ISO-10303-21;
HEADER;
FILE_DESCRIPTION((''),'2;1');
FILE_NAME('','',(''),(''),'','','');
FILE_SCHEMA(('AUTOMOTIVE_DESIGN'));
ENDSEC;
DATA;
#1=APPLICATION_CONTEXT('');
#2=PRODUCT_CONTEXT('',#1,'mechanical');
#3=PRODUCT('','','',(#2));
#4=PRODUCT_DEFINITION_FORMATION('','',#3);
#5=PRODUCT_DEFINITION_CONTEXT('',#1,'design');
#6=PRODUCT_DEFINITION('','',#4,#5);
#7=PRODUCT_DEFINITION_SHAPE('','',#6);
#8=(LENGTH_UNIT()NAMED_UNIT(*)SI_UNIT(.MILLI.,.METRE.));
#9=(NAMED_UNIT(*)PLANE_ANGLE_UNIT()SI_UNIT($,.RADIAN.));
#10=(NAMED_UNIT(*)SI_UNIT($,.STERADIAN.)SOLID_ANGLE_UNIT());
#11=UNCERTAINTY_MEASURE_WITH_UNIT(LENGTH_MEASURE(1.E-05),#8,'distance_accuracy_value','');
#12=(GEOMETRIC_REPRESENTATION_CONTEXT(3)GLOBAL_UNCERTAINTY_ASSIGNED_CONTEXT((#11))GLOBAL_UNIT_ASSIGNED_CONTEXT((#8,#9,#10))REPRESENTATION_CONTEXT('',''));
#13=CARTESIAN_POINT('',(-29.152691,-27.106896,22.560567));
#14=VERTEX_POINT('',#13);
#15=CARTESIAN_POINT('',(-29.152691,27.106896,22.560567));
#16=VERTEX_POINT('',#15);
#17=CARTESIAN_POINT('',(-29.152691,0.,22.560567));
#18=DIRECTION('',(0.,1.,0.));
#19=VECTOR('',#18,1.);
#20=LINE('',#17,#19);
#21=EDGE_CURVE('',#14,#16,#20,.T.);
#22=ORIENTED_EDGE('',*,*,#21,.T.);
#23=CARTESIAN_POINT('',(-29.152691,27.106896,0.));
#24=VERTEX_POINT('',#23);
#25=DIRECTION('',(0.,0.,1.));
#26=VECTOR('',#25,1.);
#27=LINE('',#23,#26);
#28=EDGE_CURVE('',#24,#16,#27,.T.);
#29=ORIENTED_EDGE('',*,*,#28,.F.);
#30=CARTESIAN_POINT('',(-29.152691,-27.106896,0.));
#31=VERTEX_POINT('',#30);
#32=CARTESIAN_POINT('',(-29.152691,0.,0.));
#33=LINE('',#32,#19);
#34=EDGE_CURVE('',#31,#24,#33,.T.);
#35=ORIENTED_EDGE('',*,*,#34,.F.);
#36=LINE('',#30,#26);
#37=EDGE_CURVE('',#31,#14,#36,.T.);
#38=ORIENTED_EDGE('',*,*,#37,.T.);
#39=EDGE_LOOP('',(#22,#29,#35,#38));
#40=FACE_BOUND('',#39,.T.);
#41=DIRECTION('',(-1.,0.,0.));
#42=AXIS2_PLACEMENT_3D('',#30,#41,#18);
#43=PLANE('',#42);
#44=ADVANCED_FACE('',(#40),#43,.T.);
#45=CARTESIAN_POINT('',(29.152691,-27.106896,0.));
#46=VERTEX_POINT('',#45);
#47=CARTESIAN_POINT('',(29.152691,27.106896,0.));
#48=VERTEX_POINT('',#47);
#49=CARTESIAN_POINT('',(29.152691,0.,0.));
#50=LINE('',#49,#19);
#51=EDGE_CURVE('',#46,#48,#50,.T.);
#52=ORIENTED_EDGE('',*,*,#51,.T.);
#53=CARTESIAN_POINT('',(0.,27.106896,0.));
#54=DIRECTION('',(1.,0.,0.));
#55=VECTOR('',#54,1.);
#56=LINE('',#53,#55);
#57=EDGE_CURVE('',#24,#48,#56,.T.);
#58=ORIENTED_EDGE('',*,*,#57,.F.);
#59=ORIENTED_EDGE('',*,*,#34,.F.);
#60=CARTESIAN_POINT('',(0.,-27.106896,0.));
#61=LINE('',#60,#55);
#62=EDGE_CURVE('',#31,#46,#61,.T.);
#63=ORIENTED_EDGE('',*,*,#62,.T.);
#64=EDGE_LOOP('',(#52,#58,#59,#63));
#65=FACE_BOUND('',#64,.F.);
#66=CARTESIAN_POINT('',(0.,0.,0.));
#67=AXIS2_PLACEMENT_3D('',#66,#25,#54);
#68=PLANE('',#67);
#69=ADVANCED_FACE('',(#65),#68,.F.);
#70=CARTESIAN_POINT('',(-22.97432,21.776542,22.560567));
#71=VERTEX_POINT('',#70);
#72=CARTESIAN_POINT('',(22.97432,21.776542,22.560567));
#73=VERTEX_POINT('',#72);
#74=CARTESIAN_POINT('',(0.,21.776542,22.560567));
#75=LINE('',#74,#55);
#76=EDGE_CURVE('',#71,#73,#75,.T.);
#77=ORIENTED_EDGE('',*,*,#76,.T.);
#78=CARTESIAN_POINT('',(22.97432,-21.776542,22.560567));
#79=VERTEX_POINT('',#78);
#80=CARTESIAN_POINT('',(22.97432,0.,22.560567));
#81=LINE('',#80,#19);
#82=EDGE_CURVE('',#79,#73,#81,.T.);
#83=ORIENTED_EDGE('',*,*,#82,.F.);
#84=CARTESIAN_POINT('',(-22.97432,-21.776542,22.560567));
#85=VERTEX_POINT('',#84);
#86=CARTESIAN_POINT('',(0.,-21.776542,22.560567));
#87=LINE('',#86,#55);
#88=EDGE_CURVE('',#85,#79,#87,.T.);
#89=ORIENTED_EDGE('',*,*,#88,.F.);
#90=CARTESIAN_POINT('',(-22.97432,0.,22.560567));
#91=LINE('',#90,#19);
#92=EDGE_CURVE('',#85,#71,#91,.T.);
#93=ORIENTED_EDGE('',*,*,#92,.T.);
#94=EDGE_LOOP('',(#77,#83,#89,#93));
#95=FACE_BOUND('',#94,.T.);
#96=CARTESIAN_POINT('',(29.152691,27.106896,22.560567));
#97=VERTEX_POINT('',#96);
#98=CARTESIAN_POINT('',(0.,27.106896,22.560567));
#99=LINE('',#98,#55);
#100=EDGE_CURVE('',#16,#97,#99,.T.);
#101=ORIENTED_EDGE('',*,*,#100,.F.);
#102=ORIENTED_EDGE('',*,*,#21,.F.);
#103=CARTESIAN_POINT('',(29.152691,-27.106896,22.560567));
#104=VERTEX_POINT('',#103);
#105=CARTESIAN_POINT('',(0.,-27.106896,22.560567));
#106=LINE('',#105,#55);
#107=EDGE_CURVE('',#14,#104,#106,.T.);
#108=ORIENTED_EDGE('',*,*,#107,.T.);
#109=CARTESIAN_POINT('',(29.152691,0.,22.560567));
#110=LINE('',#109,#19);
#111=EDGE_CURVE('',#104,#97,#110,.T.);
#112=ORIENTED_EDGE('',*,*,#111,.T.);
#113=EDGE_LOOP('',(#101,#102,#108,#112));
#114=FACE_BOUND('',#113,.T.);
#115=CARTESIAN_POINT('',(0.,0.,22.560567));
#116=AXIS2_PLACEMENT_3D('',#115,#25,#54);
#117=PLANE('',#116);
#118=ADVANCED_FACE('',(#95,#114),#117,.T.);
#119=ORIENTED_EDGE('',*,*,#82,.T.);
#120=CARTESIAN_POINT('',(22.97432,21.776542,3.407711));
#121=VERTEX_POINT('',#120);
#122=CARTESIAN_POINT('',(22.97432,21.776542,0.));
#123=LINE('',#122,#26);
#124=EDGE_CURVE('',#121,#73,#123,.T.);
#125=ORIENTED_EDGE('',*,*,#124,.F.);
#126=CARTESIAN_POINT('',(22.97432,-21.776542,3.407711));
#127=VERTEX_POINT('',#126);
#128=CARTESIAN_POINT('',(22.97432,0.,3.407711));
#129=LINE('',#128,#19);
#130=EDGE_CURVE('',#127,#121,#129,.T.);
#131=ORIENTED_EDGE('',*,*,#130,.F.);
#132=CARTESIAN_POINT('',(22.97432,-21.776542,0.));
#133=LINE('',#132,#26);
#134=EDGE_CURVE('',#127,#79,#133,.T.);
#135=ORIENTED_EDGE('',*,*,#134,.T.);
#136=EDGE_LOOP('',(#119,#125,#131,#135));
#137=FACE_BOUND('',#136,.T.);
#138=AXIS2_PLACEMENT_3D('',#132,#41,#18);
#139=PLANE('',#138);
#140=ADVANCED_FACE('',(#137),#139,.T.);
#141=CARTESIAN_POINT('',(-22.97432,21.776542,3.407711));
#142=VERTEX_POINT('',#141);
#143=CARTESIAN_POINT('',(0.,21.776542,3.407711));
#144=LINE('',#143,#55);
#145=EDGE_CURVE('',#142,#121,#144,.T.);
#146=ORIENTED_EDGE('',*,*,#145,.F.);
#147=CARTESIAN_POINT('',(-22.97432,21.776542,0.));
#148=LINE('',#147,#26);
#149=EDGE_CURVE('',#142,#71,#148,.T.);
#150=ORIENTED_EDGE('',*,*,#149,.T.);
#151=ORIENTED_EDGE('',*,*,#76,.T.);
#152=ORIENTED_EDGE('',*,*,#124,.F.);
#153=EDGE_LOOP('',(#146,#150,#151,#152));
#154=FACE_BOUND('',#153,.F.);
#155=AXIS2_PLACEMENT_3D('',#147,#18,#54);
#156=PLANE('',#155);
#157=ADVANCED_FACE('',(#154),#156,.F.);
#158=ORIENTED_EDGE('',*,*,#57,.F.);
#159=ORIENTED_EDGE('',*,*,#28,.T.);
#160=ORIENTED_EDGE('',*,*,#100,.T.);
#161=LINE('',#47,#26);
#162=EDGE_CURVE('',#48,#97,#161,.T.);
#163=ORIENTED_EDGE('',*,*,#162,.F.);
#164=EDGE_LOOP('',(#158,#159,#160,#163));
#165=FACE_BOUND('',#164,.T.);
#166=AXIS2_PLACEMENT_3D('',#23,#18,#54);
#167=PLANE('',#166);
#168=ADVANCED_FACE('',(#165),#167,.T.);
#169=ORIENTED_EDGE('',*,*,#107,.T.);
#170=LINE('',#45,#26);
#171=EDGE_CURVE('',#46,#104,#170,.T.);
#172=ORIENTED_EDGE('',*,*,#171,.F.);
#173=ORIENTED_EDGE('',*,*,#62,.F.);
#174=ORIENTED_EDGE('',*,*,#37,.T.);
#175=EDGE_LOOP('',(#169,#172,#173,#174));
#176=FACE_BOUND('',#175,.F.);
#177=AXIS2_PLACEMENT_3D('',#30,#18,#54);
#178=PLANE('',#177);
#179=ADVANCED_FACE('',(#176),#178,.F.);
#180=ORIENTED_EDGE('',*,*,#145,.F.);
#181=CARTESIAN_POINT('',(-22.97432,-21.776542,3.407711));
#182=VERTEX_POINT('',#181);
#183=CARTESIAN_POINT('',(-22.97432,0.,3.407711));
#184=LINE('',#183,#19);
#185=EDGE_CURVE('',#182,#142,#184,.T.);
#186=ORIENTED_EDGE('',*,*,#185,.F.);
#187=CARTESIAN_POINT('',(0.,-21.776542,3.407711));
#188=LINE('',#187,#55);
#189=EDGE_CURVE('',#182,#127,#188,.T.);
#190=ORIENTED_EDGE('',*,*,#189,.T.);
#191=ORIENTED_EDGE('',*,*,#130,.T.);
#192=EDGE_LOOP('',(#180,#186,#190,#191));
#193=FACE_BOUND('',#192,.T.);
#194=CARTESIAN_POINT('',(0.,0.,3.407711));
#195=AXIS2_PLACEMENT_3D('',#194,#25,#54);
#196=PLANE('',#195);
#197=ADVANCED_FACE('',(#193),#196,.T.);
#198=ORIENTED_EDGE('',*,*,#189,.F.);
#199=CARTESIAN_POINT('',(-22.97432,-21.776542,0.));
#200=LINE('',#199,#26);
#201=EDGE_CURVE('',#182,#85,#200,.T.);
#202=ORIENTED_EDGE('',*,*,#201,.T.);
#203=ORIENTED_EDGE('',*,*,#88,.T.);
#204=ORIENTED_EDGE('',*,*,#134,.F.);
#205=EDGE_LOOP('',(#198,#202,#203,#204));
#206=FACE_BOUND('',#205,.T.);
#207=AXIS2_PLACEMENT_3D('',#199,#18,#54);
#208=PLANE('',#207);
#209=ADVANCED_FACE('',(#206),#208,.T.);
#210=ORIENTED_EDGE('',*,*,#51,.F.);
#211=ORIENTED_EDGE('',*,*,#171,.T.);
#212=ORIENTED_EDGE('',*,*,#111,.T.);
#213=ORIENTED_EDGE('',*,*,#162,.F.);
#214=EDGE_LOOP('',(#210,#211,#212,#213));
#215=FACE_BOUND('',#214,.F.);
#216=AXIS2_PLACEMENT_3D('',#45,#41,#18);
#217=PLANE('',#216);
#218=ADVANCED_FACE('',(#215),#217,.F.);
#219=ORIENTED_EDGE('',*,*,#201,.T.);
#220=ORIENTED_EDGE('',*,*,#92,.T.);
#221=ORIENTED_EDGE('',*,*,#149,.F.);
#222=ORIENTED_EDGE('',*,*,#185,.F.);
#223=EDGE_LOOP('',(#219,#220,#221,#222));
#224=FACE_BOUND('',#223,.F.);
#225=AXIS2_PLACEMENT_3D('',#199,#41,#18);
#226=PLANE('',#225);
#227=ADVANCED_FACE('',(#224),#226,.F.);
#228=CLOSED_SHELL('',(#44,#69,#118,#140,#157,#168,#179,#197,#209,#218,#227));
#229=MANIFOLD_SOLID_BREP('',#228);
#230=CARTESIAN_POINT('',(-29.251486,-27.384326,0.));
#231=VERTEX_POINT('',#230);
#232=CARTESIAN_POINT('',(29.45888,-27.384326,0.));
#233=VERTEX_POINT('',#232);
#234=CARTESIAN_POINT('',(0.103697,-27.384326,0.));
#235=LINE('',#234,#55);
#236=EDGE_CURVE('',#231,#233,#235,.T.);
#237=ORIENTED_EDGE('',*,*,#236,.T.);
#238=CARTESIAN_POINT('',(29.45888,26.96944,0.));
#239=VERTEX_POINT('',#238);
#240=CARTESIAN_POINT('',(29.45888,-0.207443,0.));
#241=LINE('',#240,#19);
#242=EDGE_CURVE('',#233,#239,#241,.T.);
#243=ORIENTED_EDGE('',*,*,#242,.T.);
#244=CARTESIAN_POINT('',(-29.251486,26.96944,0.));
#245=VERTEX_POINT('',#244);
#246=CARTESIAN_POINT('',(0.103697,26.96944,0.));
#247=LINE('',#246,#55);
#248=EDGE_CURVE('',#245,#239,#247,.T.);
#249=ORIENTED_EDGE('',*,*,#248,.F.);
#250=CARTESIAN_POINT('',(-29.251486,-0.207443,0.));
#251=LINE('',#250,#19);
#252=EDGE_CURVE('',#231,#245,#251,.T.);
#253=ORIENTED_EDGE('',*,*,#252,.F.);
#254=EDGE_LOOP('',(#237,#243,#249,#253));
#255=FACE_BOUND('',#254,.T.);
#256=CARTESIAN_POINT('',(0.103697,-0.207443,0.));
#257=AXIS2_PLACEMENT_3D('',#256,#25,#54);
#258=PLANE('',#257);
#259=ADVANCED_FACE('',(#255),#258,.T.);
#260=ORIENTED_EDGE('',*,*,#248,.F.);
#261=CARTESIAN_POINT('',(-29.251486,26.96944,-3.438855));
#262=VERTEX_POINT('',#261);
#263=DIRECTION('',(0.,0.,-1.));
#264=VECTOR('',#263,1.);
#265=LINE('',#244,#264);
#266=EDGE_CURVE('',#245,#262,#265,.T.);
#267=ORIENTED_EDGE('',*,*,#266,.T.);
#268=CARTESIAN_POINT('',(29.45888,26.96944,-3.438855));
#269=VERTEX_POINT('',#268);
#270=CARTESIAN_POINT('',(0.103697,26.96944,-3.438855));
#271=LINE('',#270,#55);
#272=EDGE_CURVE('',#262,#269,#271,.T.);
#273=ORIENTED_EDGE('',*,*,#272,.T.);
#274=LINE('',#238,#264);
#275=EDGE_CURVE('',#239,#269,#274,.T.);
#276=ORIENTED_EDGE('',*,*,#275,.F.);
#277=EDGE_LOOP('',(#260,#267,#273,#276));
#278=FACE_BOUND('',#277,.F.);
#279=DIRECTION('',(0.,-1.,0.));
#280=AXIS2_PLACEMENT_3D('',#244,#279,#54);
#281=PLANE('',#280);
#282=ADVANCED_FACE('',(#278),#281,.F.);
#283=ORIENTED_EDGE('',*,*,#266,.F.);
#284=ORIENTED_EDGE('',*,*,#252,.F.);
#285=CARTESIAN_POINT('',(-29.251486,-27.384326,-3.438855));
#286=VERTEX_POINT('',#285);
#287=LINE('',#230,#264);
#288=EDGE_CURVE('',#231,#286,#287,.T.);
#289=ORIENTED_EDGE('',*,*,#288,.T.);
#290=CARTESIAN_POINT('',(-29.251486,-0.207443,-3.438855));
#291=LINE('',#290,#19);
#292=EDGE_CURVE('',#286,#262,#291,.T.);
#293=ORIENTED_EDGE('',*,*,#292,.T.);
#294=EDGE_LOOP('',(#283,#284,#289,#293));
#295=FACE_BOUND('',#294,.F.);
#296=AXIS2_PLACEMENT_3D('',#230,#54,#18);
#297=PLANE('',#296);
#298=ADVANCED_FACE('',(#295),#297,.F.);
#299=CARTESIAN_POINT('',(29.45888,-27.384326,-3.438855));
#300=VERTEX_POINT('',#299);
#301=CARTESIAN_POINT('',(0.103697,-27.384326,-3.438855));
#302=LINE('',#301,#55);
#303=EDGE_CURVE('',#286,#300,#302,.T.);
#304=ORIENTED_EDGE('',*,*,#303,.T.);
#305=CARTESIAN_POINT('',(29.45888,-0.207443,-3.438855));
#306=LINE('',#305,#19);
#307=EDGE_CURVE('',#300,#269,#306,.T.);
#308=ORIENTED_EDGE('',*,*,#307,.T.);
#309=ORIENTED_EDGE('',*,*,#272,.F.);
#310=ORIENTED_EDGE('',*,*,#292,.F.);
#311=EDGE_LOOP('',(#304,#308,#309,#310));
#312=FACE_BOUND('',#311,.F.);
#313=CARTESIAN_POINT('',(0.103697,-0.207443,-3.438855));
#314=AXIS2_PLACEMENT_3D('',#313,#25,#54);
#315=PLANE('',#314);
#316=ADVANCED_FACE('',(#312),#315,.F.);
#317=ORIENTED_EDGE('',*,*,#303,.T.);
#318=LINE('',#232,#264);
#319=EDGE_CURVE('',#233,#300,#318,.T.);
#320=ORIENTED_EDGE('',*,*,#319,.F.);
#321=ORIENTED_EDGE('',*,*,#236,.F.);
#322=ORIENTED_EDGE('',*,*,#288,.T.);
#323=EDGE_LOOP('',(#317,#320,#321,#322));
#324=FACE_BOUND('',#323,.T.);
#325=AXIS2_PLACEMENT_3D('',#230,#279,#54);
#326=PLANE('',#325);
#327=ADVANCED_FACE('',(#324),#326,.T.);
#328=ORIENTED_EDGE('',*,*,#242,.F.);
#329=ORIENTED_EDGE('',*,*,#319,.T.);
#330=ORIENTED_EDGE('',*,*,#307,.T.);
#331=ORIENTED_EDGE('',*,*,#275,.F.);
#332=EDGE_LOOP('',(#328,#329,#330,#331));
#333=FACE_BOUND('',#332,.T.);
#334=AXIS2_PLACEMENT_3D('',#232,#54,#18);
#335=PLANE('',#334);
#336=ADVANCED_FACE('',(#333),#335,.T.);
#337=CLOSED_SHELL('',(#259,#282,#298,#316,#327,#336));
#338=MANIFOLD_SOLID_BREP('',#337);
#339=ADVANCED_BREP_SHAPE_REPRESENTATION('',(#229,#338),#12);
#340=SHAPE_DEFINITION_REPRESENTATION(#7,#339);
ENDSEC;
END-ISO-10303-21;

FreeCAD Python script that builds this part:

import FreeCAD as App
import Part
import Sketcher
from FreeCAD import Vector


def add_polygon(sketch, points):
    """Adds a closed chain of lines whose ends are joined by coincident constraints."""
    first, n = sketch.GeometryCount, len(points)
    for a, b in zip(points, points[1:] + points[:1]):
        sketch.addGeometry(Part.LineSegment(App.Vector(*a, 0), App.Vector(*b, 0)), False)
    for i in range(n):
        sketch.addConstraint(Sketcher.Constraint("Coincident", first + i, 2, first + (i + 1) % n, 1))

doc = App.newDocument("Part")
body = doc.addObject("PartDesign::Body", "Body")

# Sketch on XY plane
sketch1 = body.newObject("Sketcher::SketchObject", "Sketch")
sketch1.AttachmentSupport = (doc.getObject("XY_Plane"), [""])
sketch1.MapMode = "FlatFace"
add_polygon(sketch1, [(-29, 27), (-29, -27), (29, -27), (29, 27)])  # lines 0-3
add_polygon(sketch1, [(23, -22), (-23, -22), (-23, 22), (23, 22)])  # lines 4-7
sketch1.addConstraint([
    Sketcher.Constraint("Vertical", 0),
    Sketcher.Constraint("Horizontal", 1),
    Sketcher.Constraint("Vertical", 2),
    Sketcher.Constraint("Horizontal", 3),
    Sketcher.Constraint("Horizontal", 4),
    Sketcher.Constraint("Vertical", 5),
    Sketcher.Constraint("Horizontal", 6),
    Sketcher.Constraint("Vertical", 7),
    Sketcher.Constraint("Symmetric", 0, 2, 2, 2, -1, 1),
    Sketcher.Constraint("Symmetric", 4, 2, 6, 2, -1, 1),
    Sketcher.Constraint("DistanceX", 4, 2, 4, 1, 45.94864),
    Sketcher.Constraint("DistanceY", 0, 2, 0, 1, 54.213792),
    Sketcher.Constraint("DistanceX", 1, 1, 1, 2, 58.305382),
    Sketcher.Constraint("DistanceY", 5, 1, 5, 2, 43.553084),
])
pad1 = body.newObject("PartDesign::Pad", "Pad")
pad1.Profile = sketch1
pad1.Length = 22.560567

# Sketch on XY plane
sketch2 = body.newObject("Sketcher::SketchObject", "Sketch001")
sketch2.AttachmentSupport = (doc.getObject("XY_Plane"), [""])
sketch2.MapMode = "FlatFace"
add_polygon(sketch2, [(-23, 22), (-23, -22), (23, -22), (23, 22)])  # lines 0-3
sketch2.addConstraint([
    Sketcher.Constraint("Vertical", 0),
    Sketcher.Constraint("Horizontal", 1),
    Sketcher.Constraint("Vertical", 2),
    Sketcher.Constraint("Horizontal", 3),
    Sketcher.Constraint("Symmetric", 0, 2, 2, 2, -1, 1),
    Sketcher.Constraint("DistanceX", 1, 1, 1, 2, 45.94864),
    Sketcher.Constraint("DistanceY", 0, 2, 0, 1, 43.553084),
])
pad2 = body.newObject("PartDesign::Pad", "Pad001")
pad2.Profile = sketch2
pad2.Length = 3.407711
body2 = doc.addObject("PartDesign::Body", "Body001")

# Sketch on XY plane
sketch3 = body2.newObject("Sketcher::SketchObject", "Sketch002")
sketch3.AttachmentSupport = (doc.getObject("XY_Plane001"), [""])
sketch3.MapMode = "FlatFace"
add_polygon(sketch3, [(-29, 27), (-29, -27), (29, -27), (29, 27)])  # lines 0-3
sketch3.addConstraint([
    Sketcher.Constraint("Vertical", 0),
    Sketcher.Constraint("Horizontal", 1),
    Sketcher.Constraint("Vertical", 2),
    Sketcher.Constraint("Horizontal", 3),
    Sketcher.Constraint("DistanceX", 1, 1, 1, 2, 58.710366),
    Sketcher.Constraint("DistanceY", 0, 2, 0, 1, 54.353766),
    Sketcher.Constraint("DistanceX", -1, 1, 1, 2, 29.45888),
    Sketcher.Constraint("DistanceY", -1, 1, 2, 2, 26.96944),
])
pad3 = body2.newObject("PartDesign::Pad", "Pad002")
pad3.Profile = sketch3
pad3.Length = 3.438855
pad3.Reversed = True

doc.recompute()
